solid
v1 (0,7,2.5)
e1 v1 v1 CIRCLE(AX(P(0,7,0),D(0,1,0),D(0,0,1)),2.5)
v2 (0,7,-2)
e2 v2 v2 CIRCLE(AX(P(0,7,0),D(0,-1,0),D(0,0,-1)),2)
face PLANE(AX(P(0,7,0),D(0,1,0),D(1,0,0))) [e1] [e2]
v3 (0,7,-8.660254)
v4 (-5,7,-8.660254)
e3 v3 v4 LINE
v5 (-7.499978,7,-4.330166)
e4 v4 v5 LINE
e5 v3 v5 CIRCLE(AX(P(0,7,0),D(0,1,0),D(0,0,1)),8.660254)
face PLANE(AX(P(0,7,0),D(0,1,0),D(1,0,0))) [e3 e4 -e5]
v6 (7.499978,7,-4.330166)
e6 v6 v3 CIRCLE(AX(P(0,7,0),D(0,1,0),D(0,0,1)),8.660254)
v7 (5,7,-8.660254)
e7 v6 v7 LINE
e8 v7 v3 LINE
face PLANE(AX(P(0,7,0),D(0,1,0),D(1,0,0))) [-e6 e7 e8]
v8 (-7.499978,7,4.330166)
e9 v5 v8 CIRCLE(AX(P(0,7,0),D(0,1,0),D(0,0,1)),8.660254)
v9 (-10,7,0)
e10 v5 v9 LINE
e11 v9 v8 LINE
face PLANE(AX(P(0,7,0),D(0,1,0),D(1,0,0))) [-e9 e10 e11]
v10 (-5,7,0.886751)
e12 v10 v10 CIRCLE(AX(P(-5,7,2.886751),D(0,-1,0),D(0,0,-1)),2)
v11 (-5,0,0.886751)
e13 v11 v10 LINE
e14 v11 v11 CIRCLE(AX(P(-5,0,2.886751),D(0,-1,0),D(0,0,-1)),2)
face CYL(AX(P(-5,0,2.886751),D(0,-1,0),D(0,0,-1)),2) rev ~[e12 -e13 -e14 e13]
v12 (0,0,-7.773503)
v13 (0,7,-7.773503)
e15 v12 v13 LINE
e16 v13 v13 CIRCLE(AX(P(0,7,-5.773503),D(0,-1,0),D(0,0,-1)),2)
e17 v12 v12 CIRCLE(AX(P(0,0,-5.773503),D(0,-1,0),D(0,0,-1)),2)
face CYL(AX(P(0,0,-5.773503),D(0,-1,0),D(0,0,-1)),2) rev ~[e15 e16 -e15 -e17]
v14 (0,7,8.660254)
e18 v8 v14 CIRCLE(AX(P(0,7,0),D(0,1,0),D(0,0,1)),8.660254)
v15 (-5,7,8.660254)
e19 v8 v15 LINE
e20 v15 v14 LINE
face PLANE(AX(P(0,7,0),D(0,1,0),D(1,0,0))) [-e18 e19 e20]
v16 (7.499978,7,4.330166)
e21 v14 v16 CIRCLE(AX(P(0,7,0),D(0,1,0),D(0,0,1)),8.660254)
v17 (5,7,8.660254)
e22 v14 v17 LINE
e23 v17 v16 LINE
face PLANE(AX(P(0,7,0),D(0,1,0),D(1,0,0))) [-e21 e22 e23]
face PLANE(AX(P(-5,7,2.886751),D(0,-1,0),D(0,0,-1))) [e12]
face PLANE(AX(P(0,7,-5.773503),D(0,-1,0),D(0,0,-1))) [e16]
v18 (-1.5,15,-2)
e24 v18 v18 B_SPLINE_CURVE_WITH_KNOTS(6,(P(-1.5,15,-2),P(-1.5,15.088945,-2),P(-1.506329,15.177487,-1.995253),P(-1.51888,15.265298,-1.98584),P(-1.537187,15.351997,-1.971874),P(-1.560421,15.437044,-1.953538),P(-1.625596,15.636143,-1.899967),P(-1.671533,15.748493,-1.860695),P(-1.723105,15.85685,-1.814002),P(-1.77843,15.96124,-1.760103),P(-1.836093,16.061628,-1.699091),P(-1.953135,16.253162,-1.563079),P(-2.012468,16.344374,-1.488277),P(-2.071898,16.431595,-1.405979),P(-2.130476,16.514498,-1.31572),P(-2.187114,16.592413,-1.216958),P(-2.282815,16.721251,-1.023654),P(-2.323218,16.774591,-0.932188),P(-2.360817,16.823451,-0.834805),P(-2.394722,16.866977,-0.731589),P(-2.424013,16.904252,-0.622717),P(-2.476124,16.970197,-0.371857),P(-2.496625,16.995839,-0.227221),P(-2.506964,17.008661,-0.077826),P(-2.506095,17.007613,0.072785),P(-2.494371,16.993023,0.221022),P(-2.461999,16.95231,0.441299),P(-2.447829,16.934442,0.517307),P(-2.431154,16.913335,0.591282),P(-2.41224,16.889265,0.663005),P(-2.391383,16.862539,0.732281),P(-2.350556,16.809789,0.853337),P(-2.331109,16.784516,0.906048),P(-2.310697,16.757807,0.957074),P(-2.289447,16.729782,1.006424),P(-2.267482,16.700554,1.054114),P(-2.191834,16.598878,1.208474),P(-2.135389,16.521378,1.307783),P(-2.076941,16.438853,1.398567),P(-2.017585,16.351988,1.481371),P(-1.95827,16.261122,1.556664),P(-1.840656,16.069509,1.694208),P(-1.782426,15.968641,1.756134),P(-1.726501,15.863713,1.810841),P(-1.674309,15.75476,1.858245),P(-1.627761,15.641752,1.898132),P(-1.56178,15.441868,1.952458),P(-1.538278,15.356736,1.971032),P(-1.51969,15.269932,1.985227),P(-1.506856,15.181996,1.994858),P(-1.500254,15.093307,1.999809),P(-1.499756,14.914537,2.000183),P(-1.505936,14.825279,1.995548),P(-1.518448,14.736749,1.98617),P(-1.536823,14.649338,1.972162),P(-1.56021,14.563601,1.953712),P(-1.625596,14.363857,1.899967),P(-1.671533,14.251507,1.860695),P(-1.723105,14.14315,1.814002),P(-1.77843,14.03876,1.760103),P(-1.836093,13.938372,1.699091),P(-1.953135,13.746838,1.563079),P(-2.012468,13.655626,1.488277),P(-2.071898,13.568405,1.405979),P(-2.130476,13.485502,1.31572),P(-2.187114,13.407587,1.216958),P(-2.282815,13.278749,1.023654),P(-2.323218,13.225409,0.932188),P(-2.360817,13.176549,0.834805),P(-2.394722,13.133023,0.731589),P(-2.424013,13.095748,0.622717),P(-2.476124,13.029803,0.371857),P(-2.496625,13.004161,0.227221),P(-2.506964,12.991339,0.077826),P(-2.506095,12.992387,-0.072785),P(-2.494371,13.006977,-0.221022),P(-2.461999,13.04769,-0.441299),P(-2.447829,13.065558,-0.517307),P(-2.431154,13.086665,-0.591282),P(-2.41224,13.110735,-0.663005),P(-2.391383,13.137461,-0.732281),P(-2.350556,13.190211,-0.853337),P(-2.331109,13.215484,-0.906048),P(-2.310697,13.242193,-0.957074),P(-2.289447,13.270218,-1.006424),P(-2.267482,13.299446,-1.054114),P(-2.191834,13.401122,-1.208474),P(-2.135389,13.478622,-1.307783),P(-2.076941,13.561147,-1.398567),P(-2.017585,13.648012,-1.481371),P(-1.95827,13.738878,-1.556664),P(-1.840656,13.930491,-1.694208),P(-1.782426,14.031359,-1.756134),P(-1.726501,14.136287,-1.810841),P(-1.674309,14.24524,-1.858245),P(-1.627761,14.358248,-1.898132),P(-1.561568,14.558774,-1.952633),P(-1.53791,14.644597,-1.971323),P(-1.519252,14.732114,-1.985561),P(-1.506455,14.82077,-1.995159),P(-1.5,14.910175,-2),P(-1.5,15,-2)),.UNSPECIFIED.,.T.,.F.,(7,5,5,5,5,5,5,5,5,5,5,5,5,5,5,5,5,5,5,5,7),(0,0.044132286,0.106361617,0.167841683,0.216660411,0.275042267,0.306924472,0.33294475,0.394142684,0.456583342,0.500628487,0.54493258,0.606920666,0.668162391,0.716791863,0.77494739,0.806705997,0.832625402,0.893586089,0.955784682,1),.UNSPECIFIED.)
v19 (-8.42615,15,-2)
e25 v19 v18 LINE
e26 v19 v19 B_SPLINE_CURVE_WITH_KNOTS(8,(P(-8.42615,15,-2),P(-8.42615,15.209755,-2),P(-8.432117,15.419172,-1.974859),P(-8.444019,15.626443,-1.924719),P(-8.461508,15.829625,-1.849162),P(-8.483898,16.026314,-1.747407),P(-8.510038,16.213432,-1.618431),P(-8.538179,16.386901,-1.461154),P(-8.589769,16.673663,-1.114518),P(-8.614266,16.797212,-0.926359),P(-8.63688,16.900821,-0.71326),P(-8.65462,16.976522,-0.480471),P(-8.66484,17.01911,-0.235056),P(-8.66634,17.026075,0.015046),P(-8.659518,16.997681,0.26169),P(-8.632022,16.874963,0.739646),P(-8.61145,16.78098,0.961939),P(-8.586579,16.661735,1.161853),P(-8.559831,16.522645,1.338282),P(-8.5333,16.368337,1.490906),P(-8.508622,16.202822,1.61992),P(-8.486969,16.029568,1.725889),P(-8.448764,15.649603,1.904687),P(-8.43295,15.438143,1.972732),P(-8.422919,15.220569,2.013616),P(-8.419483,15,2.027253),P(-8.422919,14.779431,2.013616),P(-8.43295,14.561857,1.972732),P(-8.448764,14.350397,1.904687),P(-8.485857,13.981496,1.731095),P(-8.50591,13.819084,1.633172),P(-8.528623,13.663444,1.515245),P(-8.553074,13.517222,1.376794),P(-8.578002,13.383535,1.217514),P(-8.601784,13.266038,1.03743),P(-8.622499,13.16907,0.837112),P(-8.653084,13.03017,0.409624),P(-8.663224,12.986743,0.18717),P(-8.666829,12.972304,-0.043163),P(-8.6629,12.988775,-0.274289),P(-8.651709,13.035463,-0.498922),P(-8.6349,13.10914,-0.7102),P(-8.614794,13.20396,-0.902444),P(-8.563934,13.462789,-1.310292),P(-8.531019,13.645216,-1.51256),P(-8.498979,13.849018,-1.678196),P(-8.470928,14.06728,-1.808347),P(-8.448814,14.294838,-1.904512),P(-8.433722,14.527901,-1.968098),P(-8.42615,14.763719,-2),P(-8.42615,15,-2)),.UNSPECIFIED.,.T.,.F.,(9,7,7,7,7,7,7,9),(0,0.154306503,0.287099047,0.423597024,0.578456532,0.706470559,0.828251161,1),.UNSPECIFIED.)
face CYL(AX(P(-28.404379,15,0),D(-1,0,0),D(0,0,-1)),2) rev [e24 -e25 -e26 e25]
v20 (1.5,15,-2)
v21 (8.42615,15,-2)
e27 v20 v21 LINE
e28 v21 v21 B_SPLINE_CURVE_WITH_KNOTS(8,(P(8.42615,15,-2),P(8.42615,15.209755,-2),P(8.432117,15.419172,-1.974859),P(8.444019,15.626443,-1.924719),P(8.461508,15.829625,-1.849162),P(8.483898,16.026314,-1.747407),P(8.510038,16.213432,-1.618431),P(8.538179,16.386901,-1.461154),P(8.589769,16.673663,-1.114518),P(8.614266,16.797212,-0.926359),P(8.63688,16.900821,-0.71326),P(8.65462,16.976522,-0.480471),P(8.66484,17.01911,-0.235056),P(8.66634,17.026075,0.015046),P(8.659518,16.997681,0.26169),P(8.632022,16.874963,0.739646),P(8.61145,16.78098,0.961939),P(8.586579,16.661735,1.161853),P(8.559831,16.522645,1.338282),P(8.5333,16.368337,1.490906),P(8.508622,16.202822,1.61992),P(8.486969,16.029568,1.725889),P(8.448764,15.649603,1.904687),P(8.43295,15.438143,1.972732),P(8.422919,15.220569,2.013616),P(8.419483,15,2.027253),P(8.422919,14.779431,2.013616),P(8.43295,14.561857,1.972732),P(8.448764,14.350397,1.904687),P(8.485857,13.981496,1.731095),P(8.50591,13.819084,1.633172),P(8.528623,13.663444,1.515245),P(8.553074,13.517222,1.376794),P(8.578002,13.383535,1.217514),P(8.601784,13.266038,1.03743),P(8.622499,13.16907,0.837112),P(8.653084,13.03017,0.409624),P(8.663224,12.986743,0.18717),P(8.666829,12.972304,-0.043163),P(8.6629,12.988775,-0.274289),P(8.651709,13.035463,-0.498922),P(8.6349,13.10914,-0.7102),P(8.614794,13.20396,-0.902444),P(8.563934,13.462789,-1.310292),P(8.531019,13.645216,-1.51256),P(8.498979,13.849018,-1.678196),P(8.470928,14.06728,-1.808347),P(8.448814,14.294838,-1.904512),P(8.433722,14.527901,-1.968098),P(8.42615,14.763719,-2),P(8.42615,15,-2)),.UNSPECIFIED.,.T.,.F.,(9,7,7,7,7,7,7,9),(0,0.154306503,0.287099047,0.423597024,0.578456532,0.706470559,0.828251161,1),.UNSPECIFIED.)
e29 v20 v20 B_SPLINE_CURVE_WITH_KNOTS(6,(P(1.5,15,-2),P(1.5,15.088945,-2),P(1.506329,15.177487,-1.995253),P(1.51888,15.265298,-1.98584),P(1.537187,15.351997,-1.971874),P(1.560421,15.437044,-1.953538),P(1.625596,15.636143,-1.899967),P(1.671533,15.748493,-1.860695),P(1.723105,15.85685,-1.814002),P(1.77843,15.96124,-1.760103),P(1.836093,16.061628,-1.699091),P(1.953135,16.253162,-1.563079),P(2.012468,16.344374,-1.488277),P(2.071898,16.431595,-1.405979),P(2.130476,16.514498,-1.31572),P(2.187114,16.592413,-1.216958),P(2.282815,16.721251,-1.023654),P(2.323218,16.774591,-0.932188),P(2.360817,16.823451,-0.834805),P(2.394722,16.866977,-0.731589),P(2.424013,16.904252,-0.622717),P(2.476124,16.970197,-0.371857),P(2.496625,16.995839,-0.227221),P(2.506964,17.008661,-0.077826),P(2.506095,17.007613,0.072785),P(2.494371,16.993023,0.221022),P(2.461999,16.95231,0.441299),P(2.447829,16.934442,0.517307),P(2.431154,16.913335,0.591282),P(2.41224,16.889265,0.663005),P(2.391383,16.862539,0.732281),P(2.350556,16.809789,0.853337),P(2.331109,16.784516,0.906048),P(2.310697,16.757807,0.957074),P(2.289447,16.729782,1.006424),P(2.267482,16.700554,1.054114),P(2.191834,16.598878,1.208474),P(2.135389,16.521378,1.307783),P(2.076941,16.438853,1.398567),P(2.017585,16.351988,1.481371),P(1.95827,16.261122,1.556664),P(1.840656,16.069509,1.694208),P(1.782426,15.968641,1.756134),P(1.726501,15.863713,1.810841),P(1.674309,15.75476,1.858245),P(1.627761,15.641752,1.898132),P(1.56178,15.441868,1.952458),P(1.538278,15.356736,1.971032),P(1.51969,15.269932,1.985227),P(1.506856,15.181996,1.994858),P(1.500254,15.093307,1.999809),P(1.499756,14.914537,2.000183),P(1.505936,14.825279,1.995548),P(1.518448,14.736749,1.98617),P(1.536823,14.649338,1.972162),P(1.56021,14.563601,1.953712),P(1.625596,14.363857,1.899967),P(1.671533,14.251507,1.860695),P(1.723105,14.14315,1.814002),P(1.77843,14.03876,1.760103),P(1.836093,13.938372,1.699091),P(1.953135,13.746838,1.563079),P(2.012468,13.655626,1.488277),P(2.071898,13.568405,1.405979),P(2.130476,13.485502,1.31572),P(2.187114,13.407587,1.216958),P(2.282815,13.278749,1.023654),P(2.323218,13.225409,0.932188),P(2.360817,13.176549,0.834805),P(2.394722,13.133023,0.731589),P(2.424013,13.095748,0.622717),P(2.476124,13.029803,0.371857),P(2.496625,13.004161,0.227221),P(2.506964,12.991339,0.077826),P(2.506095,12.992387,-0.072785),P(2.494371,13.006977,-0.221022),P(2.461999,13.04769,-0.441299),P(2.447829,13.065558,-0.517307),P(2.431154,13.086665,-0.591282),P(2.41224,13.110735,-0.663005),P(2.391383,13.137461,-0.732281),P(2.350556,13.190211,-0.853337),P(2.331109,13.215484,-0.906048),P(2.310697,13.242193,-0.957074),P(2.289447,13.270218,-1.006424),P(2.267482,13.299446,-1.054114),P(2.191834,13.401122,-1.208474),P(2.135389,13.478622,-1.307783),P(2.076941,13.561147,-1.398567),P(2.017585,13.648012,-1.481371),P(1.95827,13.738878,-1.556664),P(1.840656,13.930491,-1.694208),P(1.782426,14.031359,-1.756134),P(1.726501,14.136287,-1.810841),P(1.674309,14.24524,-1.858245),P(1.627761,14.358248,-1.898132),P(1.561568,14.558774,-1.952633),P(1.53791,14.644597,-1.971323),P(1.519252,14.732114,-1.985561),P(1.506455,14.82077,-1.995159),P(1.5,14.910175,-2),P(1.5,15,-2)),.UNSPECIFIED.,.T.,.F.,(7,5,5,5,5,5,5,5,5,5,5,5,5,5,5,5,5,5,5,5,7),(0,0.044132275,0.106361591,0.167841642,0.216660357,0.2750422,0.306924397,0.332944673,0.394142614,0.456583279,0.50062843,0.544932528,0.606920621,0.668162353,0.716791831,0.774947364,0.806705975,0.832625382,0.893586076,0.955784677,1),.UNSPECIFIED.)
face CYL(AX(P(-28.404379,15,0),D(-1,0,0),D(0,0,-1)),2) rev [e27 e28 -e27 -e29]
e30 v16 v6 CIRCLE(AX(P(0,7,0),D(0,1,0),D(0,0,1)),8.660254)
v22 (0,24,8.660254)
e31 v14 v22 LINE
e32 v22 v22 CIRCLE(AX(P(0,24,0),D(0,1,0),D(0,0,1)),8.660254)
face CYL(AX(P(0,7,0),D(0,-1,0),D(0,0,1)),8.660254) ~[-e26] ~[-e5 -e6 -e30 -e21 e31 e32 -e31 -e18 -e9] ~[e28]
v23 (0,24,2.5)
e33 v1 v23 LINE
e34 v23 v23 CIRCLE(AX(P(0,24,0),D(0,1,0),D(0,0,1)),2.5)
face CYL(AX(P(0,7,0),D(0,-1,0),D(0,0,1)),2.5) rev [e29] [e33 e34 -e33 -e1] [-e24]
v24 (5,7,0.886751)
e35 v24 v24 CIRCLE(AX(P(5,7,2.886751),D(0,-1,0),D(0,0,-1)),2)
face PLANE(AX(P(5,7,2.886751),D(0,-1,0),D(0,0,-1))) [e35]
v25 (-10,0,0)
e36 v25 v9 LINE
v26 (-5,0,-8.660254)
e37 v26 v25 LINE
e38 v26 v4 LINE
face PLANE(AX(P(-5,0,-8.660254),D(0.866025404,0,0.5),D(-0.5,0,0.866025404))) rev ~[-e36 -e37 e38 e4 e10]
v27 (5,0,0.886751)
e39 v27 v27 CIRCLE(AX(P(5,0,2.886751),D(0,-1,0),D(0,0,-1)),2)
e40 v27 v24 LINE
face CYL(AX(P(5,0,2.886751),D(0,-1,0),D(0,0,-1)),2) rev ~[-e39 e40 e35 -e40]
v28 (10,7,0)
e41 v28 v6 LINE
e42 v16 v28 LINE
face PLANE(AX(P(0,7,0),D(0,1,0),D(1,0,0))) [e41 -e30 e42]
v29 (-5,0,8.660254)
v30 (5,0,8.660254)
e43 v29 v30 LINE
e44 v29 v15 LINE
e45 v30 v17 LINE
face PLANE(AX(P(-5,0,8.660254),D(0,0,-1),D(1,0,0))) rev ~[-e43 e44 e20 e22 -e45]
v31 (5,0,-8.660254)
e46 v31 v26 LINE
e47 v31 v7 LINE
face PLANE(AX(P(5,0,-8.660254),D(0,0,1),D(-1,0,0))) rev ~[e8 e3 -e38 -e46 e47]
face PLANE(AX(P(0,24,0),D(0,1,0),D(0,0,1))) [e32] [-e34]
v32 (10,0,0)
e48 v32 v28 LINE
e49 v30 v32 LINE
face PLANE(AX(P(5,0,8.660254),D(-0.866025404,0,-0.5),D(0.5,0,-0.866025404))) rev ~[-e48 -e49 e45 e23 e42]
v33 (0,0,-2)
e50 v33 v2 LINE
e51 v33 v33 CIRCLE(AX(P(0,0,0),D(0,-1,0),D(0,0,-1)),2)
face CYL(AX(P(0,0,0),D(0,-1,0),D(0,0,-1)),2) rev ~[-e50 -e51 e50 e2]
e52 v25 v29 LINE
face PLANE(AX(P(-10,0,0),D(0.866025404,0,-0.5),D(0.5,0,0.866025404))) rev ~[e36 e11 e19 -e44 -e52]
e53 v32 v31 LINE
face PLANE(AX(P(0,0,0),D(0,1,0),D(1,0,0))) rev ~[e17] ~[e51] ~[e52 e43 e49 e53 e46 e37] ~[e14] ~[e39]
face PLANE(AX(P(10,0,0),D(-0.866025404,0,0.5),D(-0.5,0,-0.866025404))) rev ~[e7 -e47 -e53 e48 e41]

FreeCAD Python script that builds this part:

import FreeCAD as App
import Part
import Sketcher
Q = App.Units.Quantity


def add_polygon(sketch, points):
    """Adds a closed chain of lines whose ends are joined by coincident constraints."""
    first, n = sketch.GeometryCount, len(points)
    for a, b in zip(points, points[1:] + points[:1]):
        sketch.addGeometry(Part.LineSegment(App.Vector(*a, 0), App.Vector(*b, 0)), False)
    for i in range(n):
        sketch.addConstraint(Sketcher.Constraint("Coincident", first + i, 2, first + (i + 1) % n, 1))

doc = App.newDocument("Part")
body = doc.addObject("PartDesign::Body", "Body")

# Sketch on XZ plane
sketch1 = body.newObject("Sketcher::SketchObject", "Sketch")
sketch1.AttachmentSupport = (doc.getObject("XZ_Plane"), [""])
sketch1.MapMode = "FlatFace"
add_polygon(sketch1, [(10, 0), (5, -9), (-5, -9), (-10, 0), (-5, 9), (5, 9)])  # lines 0-5
sketch1.addConstraint([
    Sketcher.Constraint("Horizontal", 1),
    Sketcher.Constraint("Horizontal", 4),
    Sketcher.Constraint("Symmetric", 0, 2, 3, 2, -1, 1),
    Sketcher.Constraint("Symmetric", 2, 2, 5, 2, -1, 1),
    Sketcher.Constraint("PointOnObject", 2, 2, -1),
    Sketcher.Constraint("Parallel", 2, 5),
    Sketcher.Constraint("Vertical", 1, 2, 3, 2),
    Sketcher.Constraint("DistanceX", 1, 2, 1, 1, 10.0),
    Sketcher.Constraint("Angle", 0, Q("-120 deg")),
    Sketcher.Constraint("Distance", 0, 10.0),
])
pad1 = body.newObject("PartDesign::Pad", "Pad")
pad1.Profile = sketch1
pad1.Length = 7
pad1.Reversed = True

# Sketch on XZ plane
sketch2 = body.newObject("Sketcher::SketchObject", "Sketch001")
sketch2.AttachmentSupport = (doc.getObject("XZ_Plane"), [""])
sketch2.MapMode = "FlatFace"
sketch2.AttachmentOffset = App.Placement(App.Vector(0, 0, -7), App.Rotation())
sketch2.addGeometry([
    Part.Circle(App.Vector(0, 0, 0), App.Vector(0, 0, 1), 8.7),
    Part.Circle(App.Vector(0, 0, 0), App.Vector(0, 0, 1), 2.5),
], False)
sketch2.addConstraint([
    Sketcher.Constraint("Coincident", 0, 3, -1, 1),
    Sketcher.Constraint("Coincident", 1, 3, -1, 1),
    Sketcher.Constraint("Diameter", 1, 5.0),
    Sketcher.Constraint("Diameter", 0, 17.320508),
])
pad2 = body.newObject("PartDesign::Pad", "Pad001")
pad2.Profile = sketch2
pad2.Length = 17
pad2.Reversed = True

# Sketch on XZ plane
sketch3 = body.newObject("Sketcher::SketchObject", "Sketch002")
sketch3.AttachmentSupport = (doc.getObject("XZ_Plane"), [""])
sketch3.MapMode = "FlatFace"
sketch3.addGeometry([
    Part.Circle(App.Vector(0, 0, 0), App.Vector(0, 0, 1), 2),
    Part.Circle(App.Vector(-5, 2.9, 0), App.Vector(0, 0, 1), 2),
    Part.Circle(App.Vector(5, 2.9, 0), App.Vector(0, 0, 1), 2),
    Part.Circle(App.Vector(0, -5.8, 0), App.Vector(0, 0, 1), 2),
], False)
sketch3.addConstraint([
    Sketcher.Constraint("Coincident", 0, 3, -1, 1),
    Sketcher.Constraint("Equal", 0, 1),
    Sketcher.Constraint("Equal", 1, 2),
    Sketcher.Constraint("Equal", 2, 3),
    Sketcher.Constraint("Symmetric", 1, 3, 2, 3, -2),
    Sketcher.Constraint("PointOnObject", 3, 3, -2),
    Sketcher.Constraint("Diameter", 0, 4.0),
    Sketcher.Constraint("DistanceX", 1, 3, -1, 1, 5.0),
    Sketcher.Constraint("DistanceY", -1, 1, 1, 3, 2.886751),
    Sketcher.Constraint("DistanceY", 3, 3, -1, 1, 5.773503),
])
pocket1 = body.newObject("PartDesign::Pocket", "Pocket")
pocket1.Profile = sketch3
pocket1.Length = 7

# Sketch on YZ plane
sketch4 = body.newObject("Sketcher::SketchObject", "Sketch003")
sketch4.AttachmentSupport = (doc.getObject("YZ_Plane"), [""])
sketch4.MapMode = "FlatFace"
sketch4.addGeometry(Part.Circle(App.Vector(15, 0, 0), App.Vector(0, 0, 1), 2), False)
sketch4.addConstraint([
    Sketcher.Constraint("PointOnObject", 0, 3, -1),
    Sketcher.Constraint("Diameter", 0, 4.0),
    Sketcher.Constraint("DistanceX", -1, 1, 0, 3, 15.0),
])
pocket2 = body.newObject("PartDesign::Pocket", "Pocket001")
pocket2.Profile = sketch4
pocket2.Type = "ThroughAll"
pocket2.Midplane = True

doc.recompute()
